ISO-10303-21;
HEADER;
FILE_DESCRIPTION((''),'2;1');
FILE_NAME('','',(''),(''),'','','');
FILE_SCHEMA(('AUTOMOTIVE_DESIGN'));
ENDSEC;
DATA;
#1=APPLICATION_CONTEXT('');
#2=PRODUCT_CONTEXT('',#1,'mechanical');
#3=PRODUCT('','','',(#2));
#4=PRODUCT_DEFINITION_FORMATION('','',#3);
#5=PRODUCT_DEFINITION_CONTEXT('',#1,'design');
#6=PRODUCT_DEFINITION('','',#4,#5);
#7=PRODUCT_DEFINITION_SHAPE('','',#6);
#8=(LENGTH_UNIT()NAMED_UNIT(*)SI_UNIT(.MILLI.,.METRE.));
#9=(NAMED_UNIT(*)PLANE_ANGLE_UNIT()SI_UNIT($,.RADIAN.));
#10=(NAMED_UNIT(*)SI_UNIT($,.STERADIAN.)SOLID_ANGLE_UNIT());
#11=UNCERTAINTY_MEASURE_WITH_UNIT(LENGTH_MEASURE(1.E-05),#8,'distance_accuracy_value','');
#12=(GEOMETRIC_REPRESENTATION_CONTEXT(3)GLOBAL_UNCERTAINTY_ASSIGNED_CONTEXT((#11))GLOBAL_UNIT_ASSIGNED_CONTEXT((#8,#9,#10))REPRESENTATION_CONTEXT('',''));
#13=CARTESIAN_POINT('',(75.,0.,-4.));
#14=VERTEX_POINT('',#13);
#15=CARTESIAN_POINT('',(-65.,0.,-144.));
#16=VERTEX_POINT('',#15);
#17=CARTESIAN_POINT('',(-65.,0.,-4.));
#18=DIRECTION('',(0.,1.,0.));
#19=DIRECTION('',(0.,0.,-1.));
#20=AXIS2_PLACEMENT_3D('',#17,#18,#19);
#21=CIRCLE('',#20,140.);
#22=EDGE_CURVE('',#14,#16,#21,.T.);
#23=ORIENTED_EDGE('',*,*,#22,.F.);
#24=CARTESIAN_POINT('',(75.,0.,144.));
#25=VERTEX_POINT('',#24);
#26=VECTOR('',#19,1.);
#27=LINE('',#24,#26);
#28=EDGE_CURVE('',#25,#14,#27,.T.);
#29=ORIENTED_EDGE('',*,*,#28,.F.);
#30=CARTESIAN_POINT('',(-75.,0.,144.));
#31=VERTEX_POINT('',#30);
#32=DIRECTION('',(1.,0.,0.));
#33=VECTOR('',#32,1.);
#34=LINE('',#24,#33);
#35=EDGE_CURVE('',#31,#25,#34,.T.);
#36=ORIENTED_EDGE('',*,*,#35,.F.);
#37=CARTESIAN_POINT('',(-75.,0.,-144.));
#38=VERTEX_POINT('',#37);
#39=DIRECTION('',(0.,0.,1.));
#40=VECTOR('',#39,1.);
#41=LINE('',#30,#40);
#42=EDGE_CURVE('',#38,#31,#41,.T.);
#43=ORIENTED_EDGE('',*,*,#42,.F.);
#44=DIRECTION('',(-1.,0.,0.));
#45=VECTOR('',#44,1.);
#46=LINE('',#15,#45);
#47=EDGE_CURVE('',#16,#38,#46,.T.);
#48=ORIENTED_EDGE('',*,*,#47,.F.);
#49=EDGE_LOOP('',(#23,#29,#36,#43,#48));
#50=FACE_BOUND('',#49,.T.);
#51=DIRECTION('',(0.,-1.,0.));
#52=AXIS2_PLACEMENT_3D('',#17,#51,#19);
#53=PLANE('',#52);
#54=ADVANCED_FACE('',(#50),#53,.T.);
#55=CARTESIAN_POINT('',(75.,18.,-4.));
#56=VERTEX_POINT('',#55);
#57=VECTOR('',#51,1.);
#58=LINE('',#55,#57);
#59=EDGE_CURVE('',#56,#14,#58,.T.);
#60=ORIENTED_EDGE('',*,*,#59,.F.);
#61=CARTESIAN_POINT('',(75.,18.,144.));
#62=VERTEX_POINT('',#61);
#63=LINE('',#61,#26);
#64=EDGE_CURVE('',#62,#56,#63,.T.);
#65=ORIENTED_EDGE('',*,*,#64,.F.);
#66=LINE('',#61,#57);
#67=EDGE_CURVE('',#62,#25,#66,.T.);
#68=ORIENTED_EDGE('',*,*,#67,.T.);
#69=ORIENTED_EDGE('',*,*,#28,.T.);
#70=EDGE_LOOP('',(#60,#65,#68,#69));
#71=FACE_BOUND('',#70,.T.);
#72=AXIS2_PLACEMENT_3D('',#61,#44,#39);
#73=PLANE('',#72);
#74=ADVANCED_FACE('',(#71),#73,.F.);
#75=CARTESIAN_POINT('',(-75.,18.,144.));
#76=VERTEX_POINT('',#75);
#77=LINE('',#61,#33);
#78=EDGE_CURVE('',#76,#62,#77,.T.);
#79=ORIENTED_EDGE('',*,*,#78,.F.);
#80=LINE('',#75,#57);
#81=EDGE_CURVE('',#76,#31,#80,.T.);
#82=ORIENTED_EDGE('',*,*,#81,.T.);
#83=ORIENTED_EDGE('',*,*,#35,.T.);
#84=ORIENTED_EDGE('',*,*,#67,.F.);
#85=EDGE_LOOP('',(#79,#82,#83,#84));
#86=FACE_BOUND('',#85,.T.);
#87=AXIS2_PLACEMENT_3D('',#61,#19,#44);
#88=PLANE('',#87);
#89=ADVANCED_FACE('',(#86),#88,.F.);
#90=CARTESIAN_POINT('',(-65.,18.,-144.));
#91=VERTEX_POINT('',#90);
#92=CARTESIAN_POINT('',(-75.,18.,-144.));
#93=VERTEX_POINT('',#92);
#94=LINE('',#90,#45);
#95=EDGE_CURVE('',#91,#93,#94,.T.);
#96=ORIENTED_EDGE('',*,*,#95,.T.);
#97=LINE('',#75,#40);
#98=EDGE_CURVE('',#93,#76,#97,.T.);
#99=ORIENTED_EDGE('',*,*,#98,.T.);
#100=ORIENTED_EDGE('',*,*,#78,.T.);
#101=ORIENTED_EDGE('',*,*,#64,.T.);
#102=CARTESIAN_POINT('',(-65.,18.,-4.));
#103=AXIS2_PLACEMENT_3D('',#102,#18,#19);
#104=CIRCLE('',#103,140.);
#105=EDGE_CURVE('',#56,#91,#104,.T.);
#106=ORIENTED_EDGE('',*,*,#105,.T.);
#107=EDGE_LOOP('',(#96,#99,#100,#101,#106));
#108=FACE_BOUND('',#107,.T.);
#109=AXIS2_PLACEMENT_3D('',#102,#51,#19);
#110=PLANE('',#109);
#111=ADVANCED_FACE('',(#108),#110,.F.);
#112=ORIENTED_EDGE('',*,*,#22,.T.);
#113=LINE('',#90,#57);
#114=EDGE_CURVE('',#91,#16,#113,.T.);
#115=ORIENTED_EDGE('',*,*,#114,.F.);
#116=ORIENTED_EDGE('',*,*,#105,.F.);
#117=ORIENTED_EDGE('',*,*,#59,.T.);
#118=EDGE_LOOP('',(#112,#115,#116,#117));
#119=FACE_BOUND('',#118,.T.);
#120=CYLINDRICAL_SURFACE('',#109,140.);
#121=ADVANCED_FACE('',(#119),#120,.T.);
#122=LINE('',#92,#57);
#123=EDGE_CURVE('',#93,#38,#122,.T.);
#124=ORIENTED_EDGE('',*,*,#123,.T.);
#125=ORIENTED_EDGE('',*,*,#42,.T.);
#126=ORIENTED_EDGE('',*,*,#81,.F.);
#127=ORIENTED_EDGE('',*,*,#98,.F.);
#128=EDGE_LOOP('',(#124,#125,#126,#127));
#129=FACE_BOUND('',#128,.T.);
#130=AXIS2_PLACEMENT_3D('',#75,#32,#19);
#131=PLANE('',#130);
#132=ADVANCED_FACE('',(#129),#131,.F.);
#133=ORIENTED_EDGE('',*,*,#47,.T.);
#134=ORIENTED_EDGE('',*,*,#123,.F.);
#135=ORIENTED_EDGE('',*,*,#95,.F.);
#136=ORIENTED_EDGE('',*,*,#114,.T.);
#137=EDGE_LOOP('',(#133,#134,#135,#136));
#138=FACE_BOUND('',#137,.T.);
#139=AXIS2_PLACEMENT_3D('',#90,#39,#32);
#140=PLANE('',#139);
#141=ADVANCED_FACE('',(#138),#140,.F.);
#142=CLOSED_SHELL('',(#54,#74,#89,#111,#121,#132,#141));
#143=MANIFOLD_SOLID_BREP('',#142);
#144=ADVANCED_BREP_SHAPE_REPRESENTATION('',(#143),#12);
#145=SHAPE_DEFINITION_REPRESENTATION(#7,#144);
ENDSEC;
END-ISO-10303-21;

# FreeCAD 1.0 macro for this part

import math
import FreeCAD as App
import Part
import Sketcher
from FreeCAD import Vector
Q = App.Units.Quantity

doc = App.newDocument("Part")
body = doc.addObject("PartDesign::Body", "Body")

# Sketch on XZ plane
sketch1 = body.newObject("Sketcher::SketchObject", "Sketch")
sketch1.AttachmentSupport = (doc.getObject("XZ_Plane"), [""])
sketch1.MapMode = "FlatFace"
sketch1.addGeometry(Part.LineSegment(Vector(-75, 144, 0), Vector(75, 144, 0)), False)
sketch1.addGeometry(Part.LineSegment(Vector(75, 144, 0), Vector(75, -4, 0)), False)
sketch1.addGeometry(Part.ArcOfCircle(Part.Circle(Vector(-65, -4, 0), Vector(0, 0, 1), 140), math.radians(-90), math.radians(0)), False)
sketch1.addGeometry(Part.LineSegment(Vector(-65, -144, 0), Vector(-75, -144, 0)), False)
sketch1.addGeometry(Part.LineSegment(Vector(-75, -144, 0), Vector(-75, 144, 0)), False)
sketch1.addConstraint(Sketcher.Constraint("Coincident", 0, 2, 1, 1))
sketch1.addConstraint(Sketcher.Constraint("Tangent", 1, 2, 2, 2))
sketch1.addConstraint(Sketcher.Constraint("Tangent", 2, 1, 3, 1))
sketch1.addConstraint(Sketcher.Constraint("Coincident", 3, 2, 4, 1))
sketch1.addConstraint(Sketcher.Constraint("Coincident", 4, 2, 0, 1))
sketch1.addConstraint(Sketcher.Constraint("Horizontal", 0))
sketch1.addConstraint(Sketcher.Constraint("Vertical", 1))
sketch1.addConstraint(Sketcher.Constraint("Horizontal", 3))
sketch1.addConstraint(Sketcher.Constraint("Vertical", 4))
sketch1.addConstraint(Sketcher.Constraint("Symmetric", 0, 2, 3, 2, -1, 1))
sketch1.addConstraint(Sketcher.Constraint("Radius", 2, Q("140 mm")))
sketch1.addConstraint(Sketcher.Constraint("DistanceX", 0, 1, 0, 2, Q("150 mm")))
sketch1.addConstraint(Sketcher.Constraint("DistanceY", 1, 2, 1, 1, Q("148 mm")))
pad1 = body.newObject("PartDesign::Pad", "Pad")
pad1.Profile = sketch1
pad1.Length = 18
pad1.Reversed = True

doc.recompute()
